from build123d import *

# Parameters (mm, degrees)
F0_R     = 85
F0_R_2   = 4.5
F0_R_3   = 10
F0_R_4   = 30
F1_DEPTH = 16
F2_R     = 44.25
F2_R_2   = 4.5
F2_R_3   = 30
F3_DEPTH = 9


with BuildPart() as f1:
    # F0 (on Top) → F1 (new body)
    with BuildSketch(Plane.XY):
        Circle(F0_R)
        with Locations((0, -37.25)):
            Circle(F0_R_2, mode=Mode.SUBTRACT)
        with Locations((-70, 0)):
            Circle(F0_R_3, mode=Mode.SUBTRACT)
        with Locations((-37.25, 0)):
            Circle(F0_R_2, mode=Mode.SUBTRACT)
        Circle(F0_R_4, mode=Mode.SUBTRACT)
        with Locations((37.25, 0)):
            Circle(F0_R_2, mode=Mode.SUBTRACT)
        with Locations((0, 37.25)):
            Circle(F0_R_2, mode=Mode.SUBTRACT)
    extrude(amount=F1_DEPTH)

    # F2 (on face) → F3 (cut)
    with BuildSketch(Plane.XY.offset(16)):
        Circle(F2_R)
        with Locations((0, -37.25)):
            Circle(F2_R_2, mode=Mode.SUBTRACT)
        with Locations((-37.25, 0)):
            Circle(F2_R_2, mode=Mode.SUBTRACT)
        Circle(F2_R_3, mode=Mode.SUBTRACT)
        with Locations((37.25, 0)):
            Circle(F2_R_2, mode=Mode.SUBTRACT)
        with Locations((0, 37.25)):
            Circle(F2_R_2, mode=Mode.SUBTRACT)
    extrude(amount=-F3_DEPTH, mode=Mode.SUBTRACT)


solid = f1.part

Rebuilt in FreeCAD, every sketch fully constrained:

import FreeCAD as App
import Part
import Sketcher
Q = App.Units.Quantity

doc = App.newDocument("Part")
body = doc.addObject("PartDesign::Body", "Body")

# Sketch on XY plane
sketch1 = body.newObject("Sketcher::SketchObject", "Sketch")
sketch1.AttachmentSupport = (doc.getObject("XY_Plane"), [""])
sketch1.MapMode = "FlatFace"
sketch1.addGeometry([
    Part.Circle(App.Vector(0, 0, 0), App.Vector(0, 0, 1), 85),  # 0
    Part.Circle(App.Vector(0, -37.2, 0), App.Vector(0, 0, 1), 4.5),  # 1
    Part.Circle(App.Vector(-70, 0, 0), App.Vector(0, 0, 1), 10),  # 2
    Part.Circle(App.Vector(-37.2, 0, 0), App.Vector(0, 0, 1), 4.5),  # 3
    Part.Circle(App.Vector(0, 0, 0), App.Vector(0, 0, 1), 30),  # 4
    Part.Circle(App.Vector(37.2, 0, 0), App.Vector(0, 0, 1), 4.5),  # 5
    Part.Circle(App.Vector(0, 37.2, 0), App.Vector(0, 0, 1), 4.5),  # 6
], False)
sketch1.addConstraint([
    Sketcher.Constraint("Coincident", 0, 3, -1, 1),
    Sketcher.Constraint("Coincident", 4, 3, -1, 1),
    Sketcher.Constraint("Equal", 1, 3),
    Sketcher.Constraint("Equal", 3, 5),
    Sketcher.Constraint("Equal", 5, 6),
    Sketcher.Constraint("Symmetric", 3, 3, 5, 3, -1, 1),
    Sketcher.Constraint("Symmetric", 1, 3, 6, 3, -1, 1),
    Sketcher.Constraint("PointOnObject", 1, 3, -2),
    Sketcher.Constraint("PointOnObject", 2, 3, -1),
    Sketcher.Constraint("PointOnObject", 3, 3, -1),
    Sketcher.Constraint("Diameter", 0, Q("170 mm")),
    Sketcher.Constraint("Diameter", 1, Q("9 mm")),
    Sketcher.Constraint("Diameter", 2, Q("20 mm")),
    Sketcher.Constraint("Diameter", 4, Q("60 mm")),
    Sketcher.Constraint("DistanceX", 2, 3, -1, 1, Q("70 mm")),
    Sketcher.Constraint("DistanceX", 3, 3, 5, 3, Q("74.5 mm")),
    Sketcher.Constraint("DistanceY", 1, 3, 6, 3, Q("74.5 mm")),
])
pad1 = body.newObject("PartDesign::Pad", "Pad")
pad1.Profile = sketch1
pad1.Length = 16

# Sketch on XY plane
sketch2 = body.newObject("Sketcher::SketchObject", "Sketch001")
sketch2.AttachmentSupport = (doc.getObject("XY_Plane"), [""])
sketch2.MapMode = "FlatFace"
sketch2.AttachmentOffset = App.Placement(App.Vector(0, 0, 16), App.Rotation())
sketch2.addGeometry([
    Part.Circle(App.Vector(0, 0, 0), App.Vector(0, 0, 1), 44.2),  # 0
    Part.Circle(App.Vector(0, -37.2, 0), App.Vector(0, 0, 1), 4.5),  # 1
    Part.Circle(App.Vector(-37.2, 0, 0), App.Vector(0, 0, 1), 4.5),  # 2
    Part.Circle(App.Vector(0, 0, 0), App.Vector(0, 0, 1), 30),  # 3
    Part.Circle(App.Vector(37.2, 0, 0), App.Vector(0, 0, 1), 4.5),  # 4
    Part.Circle(App.Vector(0, 37.2, 0), App.Vector(0, 0, 1), 4.5),  # 5
], False)
sketch2.addConstraint([
    Sketcher.Constraint("Coincident", 0, 3, -1, 1),
    Sketcher.Constraint("Coincident", 3, 3, -1, 1),
    Sketcher.Constraint("Equal", 1, 2),
    Sketcher.Constraint("Equal", 2, 4),
    Sketcher.Constraint("Equal", 4, 5),
    Sketcher.Constraint("Symmetric", 2, 3, 4, 3, -1, 1),
    Sketcher.Constraint("Symmetric", 1, 3, 5, 3, -1, 1),
    Sketcher.Constraint("PointOnObject", 1, 3, -2),
    Sketcher.Constraint("PointOnObject", 2, 3, -1),
    Sketcher.Constraint("Diameter", 1, Q("9 mm")),
    Sketcher.Constraint("Diameter", 3, Q("60 mm")),
    Sketcher.Constraint("Diameter", 0, Q("88.5 mm")),
    Sketcher.Constraint("DistanceX", 2, 3, 4, 3, Q("74.5 mm")),
    Sketcher.Constraint("DistanceY", 1, 3, 5, 3, Q("74.5 mm")),
])
pocket1 = body.newObject("PartDesign::Pocket", "Pocket")
pocket1.Profile = sketch2
pocket1.Length = 9

doc.recompute()
